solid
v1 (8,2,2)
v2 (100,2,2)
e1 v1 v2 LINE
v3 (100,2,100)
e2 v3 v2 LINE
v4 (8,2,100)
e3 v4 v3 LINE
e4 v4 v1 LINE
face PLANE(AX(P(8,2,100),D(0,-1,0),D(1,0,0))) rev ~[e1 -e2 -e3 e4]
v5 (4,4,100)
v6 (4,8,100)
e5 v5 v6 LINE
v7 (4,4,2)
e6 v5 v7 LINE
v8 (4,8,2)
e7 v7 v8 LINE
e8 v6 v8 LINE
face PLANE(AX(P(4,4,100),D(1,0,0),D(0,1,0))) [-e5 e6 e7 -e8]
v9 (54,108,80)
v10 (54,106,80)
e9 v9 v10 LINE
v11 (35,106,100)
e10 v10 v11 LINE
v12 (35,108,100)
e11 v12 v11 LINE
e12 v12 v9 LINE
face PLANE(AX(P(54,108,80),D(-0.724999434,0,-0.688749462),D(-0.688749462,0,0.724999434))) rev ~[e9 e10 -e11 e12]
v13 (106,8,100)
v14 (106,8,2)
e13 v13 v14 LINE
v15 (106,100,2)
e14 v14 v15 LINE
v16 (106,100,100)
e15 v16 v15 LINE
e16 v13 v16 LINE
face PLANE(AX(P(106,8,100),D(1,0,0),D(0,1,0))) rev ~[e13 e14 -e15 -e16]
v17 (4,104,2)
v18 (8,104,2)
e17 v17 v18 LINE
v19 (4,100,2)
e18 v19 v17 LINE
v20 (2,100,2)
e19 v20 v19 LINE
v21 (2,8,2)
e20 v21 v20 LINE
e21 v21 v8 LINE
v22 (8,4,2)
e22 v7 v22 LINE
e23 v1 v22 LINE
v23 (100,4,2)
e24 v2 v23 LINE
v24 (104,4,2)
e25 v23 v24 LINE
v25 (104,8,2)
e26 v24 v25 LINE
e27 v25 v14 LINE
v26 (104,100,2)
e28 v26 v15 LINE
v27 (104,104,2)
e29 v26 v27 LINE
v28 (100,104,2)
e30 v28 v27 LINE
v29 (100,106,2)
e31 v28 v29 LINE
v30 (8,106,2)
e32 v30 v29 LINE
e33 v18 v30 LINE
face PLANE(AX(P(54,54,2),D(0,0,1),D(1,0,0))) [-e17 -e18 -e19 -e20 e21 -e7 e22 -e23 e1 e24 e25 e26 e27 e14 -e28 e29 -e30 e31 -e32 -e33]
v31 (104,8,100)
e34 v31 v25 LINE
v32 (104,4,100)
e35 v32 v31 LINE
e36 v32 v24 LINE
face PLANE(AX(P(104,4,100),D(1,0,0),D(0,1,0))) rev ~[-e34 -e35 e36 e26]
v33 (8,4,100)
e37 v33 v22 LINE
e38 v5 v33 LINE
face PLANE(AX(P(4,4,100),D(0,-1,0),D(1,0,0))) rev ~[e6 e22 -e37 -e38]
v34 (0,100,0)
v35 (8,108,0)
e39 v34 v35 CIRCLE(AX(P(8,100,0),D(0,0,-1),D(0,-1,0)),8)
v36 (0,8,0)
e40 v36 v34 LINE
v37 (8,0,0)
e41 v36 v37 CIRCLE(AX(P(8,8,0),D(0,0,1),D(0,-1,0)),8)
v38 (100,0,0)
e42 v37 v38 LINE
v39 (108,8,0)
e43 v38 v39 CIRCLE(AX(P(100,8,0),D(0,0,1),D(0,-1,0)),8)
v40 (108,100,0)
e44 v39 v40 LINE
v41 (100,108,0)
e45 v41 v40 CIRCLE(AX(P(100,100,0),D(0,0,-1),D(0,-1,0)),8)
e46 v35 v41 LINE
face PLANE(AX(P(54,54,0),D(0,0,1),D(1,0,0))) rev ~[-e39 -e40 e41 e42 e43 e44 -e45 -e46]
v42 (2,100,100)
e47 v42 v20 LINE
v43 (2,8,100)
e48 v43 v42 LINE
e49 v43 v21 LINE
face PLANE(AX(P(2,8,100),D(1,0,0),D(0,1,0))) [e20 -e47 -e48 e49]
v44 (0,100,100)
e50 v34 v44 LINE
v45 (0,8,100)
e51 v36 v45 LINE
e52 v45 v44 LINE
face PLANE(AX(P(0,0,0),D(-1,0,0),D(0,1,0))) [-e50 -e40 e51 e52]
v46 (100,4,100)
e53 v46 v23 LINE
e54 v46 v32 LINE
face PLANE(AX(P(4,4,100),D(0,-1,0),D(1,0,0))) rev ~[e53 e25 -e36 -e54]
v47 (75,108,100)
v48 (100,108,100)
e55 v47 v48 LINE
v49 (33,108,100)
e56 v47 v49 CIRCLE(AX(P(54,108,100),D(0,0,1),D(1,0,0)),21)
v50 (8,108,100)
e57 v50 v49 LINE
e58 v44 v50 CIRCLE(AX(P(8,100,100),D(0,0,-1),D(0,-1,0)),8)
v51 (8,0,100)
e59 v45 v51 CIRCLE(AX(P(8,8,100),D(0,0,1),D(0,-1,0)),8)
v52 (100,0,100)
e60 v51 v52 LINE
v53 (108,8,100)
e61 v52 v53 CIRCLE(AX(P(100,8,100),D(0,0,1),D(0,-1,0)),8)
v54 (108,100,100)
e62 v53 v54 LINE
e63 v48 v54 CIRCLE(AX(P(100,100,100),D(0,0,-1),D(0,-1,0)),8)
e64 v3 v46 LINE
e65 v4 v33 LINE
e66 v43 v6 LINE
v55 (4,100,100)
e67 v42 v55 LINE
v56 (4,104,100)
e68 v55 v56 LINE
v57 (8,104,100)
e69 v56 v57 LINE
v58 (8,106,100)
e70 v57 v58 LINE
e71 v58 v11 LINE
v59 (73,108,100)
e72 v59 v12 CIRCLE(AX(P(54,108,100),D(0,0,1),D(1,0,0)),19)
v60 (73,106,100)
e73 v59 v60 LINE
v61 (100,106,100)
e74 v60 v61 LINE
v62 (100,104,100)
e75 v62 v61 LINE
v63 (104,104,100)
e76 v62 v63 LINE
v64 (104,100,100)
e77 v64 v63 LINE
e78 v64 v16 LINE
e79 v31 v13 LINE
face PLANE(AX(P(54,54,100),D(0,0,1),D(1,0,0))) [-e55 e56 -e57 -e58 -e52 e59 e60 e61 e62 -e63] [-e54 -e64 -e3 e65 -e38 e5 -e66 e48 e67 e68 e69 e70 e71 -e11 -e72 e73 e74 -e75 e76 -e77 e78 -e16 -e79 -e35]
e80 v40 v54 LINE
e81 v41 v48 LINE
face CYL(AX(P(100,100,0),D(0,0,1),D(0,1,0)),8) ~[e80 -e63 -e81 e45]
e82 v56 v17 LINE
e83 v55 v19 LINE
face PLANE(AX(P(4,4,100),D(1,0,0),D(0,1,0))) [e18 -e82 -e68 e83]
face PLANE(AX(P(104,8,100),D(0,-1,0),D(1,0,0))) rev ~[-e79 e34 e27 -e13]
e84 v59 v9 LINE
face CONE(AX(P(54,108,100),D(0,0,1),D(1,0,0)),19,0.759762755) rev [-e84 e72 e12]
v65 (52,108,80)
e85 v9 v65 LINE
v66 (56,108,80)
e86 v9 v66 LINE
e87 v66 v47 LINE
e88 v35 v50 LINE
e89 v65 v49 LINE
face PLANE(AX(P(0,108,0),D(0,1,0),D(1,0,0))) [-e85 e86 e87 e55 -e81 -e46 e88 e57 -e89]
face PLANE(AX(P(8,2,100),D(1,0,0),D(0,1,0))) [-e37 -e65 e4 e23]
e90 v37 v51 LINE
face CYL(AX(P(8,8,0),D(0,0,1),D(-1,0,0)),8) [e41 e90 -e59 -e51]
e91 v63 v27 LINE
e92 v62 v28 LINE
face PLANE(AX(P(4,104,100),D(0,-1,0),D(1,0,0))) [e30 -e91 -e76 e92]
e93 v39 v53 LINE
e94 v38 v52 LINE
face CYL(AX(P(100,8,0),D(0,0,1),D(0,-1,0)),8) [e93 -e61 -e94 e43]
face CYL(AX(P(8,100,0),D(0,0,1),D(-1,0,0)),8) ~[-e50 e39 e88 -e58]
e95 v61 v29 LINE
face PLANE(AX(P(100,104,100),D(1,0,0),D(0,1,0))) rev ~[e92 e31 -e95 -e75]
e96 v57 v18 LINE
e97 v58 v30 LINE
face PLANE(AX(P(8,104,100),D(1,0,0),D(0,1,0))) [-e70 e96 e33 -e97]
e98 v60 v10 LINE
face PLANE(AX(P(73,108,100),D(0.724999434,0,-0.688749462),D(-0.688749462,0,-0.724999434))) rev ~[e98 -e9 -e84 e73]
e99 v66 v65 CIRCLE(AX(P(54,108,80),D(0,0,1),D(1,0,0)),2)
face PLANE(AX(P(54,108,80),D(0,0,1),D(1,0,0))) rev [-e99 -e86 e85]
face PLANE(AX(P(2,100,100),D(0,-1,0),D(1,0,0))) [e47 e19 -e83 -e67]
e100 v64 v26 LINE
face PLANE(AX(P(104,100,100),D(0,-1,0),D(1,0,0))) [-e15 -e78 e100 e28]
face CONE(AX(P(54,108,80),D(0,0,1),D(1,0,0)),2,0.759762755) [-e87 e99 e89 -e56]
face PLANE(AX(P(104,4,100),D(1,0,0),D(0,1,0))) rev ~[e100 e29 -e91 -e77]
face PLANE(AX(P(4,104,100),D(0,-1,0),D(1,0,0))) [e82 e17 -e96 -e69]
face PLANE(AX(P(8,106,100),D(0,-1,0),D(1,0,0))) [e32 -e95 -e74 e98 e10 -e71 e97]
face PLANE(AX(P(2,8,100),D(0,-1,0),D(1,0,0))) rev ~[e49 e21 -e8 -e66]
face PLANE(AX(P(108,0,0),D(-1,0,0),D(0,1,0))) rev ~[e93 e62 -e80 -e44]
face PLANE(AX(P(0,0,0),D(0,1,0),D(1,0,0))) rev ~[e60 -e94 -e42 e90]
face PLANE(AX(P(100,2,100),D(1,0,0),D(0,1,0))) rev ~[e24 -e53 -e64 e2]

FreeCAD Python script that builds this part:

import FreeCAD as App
import Part
import Sketcher
from FreeCAD import Vector
Q = App.Units.Quantity


def edges_at(feature, points):
    """Names of the edges that pass closest to the given points."""
    edges = feature.Shape.Edges
    near = lambda p: min(range(len(edges)), key=lambda i: edges[i].distToShape(Part.Vertex(*p))[0])
    return sorted({f"Edge{near(p) + 1}" for p in points})

doc = App.newDocument("Part")
body = doc.addObject("PartDesign::Body", "Body")

sketch1 = body.newObject("Sketcher::SketchObject", "Sketch")
sketch1.AttachmentSupport = (doc.getObject("XY_Plane"), [""])
sketch1.MapMode = "FlatFace"
sketch1.addGeometry([
    Part.LineSegment(Vector(0, 108, 0), Vector(0, 0, 0)),
    Part.LineSegment(Vector(0, 0, 0), Vector(108, 0, 0)),
    Part.LineSegment(Vector(108, 0, 0), Vector(108, 108, 0)),
    Part.LineSegment(Vector(108, 108, 0), Vector(0, 108, 0)),
], False)
sketch1.addConstraint([
    Sketcher.Constraint("Coincident", 0, 2, 1, 1),
    Sketcher.Constraint("Coincident", 1, 2, 2, 1),
    Sketcher.Constraint("Coincident", 2, 2, 3, 1),
    Sketcher.Constraint("Coincident", 3, 2, 0, 1),
    Sketcher.Constraint("Vertical", 0),
    Sketcher.Constraint("Horizontal", 1),
    Sketcher.Constraint("Vertical", 2),
    Sketcher.Constraint("Horizontal", 3),
    Sketcher.Constraint("Coincident", 0, 2, -1, 1),
    Sketcher.Constraint("Equal", 3, 0),
    Sketcher.Constraint("DistanceX", 1, 1, 1, 2, Q("108 mm")),
])
pad1 = body.newObject("PartDesign::Pad", "Pad")
pad1.Profile = sketch1
pad1.Length = 100

sketch2 = body.newObject("Sketcher::SketchObject", "Sketch001")
sketch2.AttachmentSupport = (doc.getObject("XY_Plane"), [""])
sketch2.MapMode = "FlatFace"
sketch2.AttachmentOffset = App.Placement(Vector(0, 0, 100), App.Rotation())
sketch2.addGeometry([
    Part.LineSegment(Vector(4, 104, 0), Vector(4, 4, 0)),
    Part.LineSegment(Vector(4, 4, 0), Vector(104, 4, 0)),
    Part.LineSegment(Vector(104, 4, 0), Vector(104, 104, 0)),
    Part.LineSegment(Vector(104, 104, 0), Vector(4, 104, 0)),
], False)
sketch2.addConstraint([
    Sketcher.Constraint("Coincident", 0, 2, 1, 1),
    Sketcher.Constraint("Coincident", 1, 2, 2, 1),
    Sketcher.Constraint("Coincident", 2, 2, 3, 1),
    Sketcher.Constraint("Coincident", 3, 2, 0, 1),
    Sketcher.Constraint("Vertical", 0),
    Sketcher.Constraint("Horizontal", 1),
    Sketcher.Constraint("Vertical", 2),
    Sketcher.Constraint("Horizontal", 3),
    Sketcher.Constraint("Equal", 3, 0),
    Sketcher.Constraint("DistanceX", 1, 1, 1, 2, Q("100 mm")),
    Sketcher.Constraint("DistanceX", -1, 1, 0, 2, Q("4 mm")),
    Sketcher.Constraint("DistanceY", -1, 1, 0, 2, Q("4 mm")),
])
pocket1 = body.newObject("PartDesign::Pocket", "Pocket")
pocket1.Profile = sketch2
pocket1.Length = 98
doc.recompute()

fillet = body.newObject("PartDesign::Fillet", "Fillet")
fillet.Base = (pocket1, edges_at(pocket1, [
    (108, 0, 50),
    (0, 0, 50),
    (0, 108, 50),
    (108, 108, 50),
]))
fillet.Radius = 8

sketch3 = body.newObject("Sketcher::SketchObject", "Sketch002")
sketch3.AttachmentSupport = (doc.getObject("XY_Plane"), [""])
sketch3.MapMode = "FlatFace"
sketch3.AttachmentOffset = App.Placement(Vector(0, 0, 100), App.Rotation())
sketch3.addGeometry([
    Part.LineSegment(Vector(2, 100, 0), Vector(2, 8, 0)),
    Part.LineSegment(Vector(2, 8, 0), Vector(4, 8, 0)),
    Part.LineSegment(Vector(4, 8, 0), Vector(4, 100, 0)),
    Part.LineSegment(Vector(4, 100, 0), Vector(2, 100, 0)),
    Part.LineSegment(Vector(8, 4, 0), Vector(8, 2, 0)),
    Part.LineSegment(Vector(8, 2, 0), Vector(100, 2, 0)),
    Part.LineSegment(Vector(100, 2, 0), Vector(100, 4, 0)),
    Part.LineSegment(Vector(100, 4, 0), Vector(8, 4, 0)),
    Part.LineSegment(Vector(104, 100, 0), Vector(104, 8, 0)),
    Part.LineSegment(Vector(104, 8, 0), Vector(106, 8, 0)),
    Part.LineSegment(Vector(106, 8, 0), Vector(106, 100, 0)),
    Part.LineSegment(Vector(106, 100, 0), Vector(104, 100, 0)),
    Part.LineSegment(Vector(8, 106, 0), Vector(8, 104, 0)),
    Part.LineSegment(Vector(8, 104, 0), Vector(100, 104, 0)),
    Part.LineSegment(Vector(100, 104, 0), Vector(100, 106, 0)),
    Part.LineSegment(Vector(100, 106, 0), Vector(8, 106, 0)),
], False)
sketch3.addConstraint([
    Sketcher.Constraint("Coincident", 0, 2, 1, 1),
    Sketcher.Constraint("Coincident", 1, 2, 2, 1),
    Sketcher.Constraint("Coincident", 2, 2, 3, 1),
    Sketcher.Constraint("Coincident", 3, 2, 0, 1),
    Sketcher.Constraint("Coincident", 4, 2, 5, 1),
    Sketcher.Constraint("Coincident", 5, 2, 6, 1),
    Sketcher.Constraint("Coincident", 6, 2, 7, 1),
    Sketcher.Constraint("Coincident", 7, 2, 4, 1),
    Sketcher.Constraint("Coincident", 8, 2, 9, 1),
    Sketcher.Constraint("Coincident", 9, 2, 10, 1),
    Sketcher.Constraint("Coincident", 10, 2, 11, 1),
    Sketcher.Constraint("Coincident", 11, 2, 8, 1),
    Sketcher.Constraint("Coincident", 12, 2, 13, 1),
    Sketcher.Constraint("Coincident", 13, 2, 14, 1),
    Sketcher.Constraint("Coincident", 14, 2, 15, 1),
    Sketcher.Constraint("Coincident", 15, 2, 12, 1),
    Sketcher.Constraint("Vertical", 0),
    Sketcher.Constraint("Horizontal", 1),
    Sketcher.Constraint("Vertical", 2),
    Sketcher.Constraint("Horizontal", 3),
    Sketcher.Constraint("Vertical", 4),
    Sketcher.Constraint("Horizontal", 5),
    Sketcher.Constraint("Vertical", 6),
    Sketcher.Constraint("Horizontal", 7),
    Sketcher.Constraint("Vertical", 8),
    Sketcher.Constraint("Horizontal", 9),
    Sketcher.Constraint("Vertical", 10),
    Sketcher.Constraint("Horizontal", 11),
    Sketcher.Constraint("Vertical", 12),
    Sketcher.Constraint("Horizontal", 13),
    Sketcher.Constraint("Vertical", 14),
    Sketcher.Constraint("Horizontal", 15),
    Sketcher.Constraint("Horizontal", 1, 2, 8, 2),
    Sketcher.Constraint("Horizontal", 3, 2, 10, 2),
    Sketcher.Constraint("Vertical", 7, 2, 12, 2),
    Sketcher.Constraint("Vertical", 6, 2, 13, 2),
    Sketcher.Constraint("Equal", 3, 9),
    Sketcher.Constraint("Equal", 15, 0),
    Sketcher.Constraint("Equal", 11, 4),
    Sketcher.Constraint("Equal", 6, 12),
    Sketcher.Constraint("DistanceX", 1, 1, 1, 2, Q("2 mm")),
    Sketcher.Constraint("DistanceX", 5, 1, 5, 2, Q("92 mm")),
    Sketcher.Constraint("DistanceX", -1, 1, 0, 2, Q("2 mm")),
    Sketcher.Constraint("DistanceY", -1, 1, 0, 2, Q("8 mm")),
    Sketcher.Constraint("DistanceX", -1, 1, 4, 2, Q("8 mm")),
    Sketcher.Constraint("DistanceY", -1, 1, 4, 2, Q("2 mm")),
    Sketcher.Constraint("DistanceX", -1, 1, 8, 2, Q("104 mm")),
    Sketcher.Constraint("DistanceY", -1, 1, 12, 2, Q("104 mm")),
])
pocket2 = body.newObject("PartDesign::Pocket", "Pocket001")
pocket2.Profile = sketch3
pocket2.Length = 98

sketch4 = body.newObject("Sketcher::SketchObject", "Sketch003")
sketch4.AttachmentSupport = (doc.getObject("XZ_Plane"), [""])
sketch4.MapMode = "FlatFace"
sketch4.AttachmentOffset = App.Placement(Vector(0, 0, -108), App.Rotation())
sketch4.addGeometry([
    Part.LineSegment(Vector(73, 100, 0), Vector(75, 100, 0)),
    Part.LineSegment(Vector(75, 100, 0), Vector(56, 80, 0)),
    Part.LineSegment(Vector(56, 80, 0), Vector(54, 80, 0)),
    Part.LineSegment(Vector(54, 80, 0), Vector(73, 100, 0)),
], False)
sketch4.addGeometry(Part.LineSegment(Vector(54, 80, 0), Vector(54, 100, 0)), True)
sketch4.addConstraint([
    Sketcher.Constraint("Coincident", 0, 2, 1, 1),
    Sketcher.Constraint("Coincident", 1, 2, 2, 1),
    Sketcher.Constraint("Coincident", 2, 2, 3, 1),
    Sketcher.Constraint("Coincident", 3, 2, 0, 1),
    Sketcher.Constraint("Horizontal", 0),
    Sketcher.Constraint("Horizontal", 2),
    Sketcher.Constraint("Vertical", 4),
    Sketcher.Constraint("Coincident", 4, 1, 2, 2),
    Sketcher.Constraint("Parallel", 1, 3),
    Sketcher.Constraint("Horizontal", 3, 2, 4, 2),
    Sketcher.Constraint("DistanceX", 0, 1, 0, 2, Q("2 mm")),
    Sketcher.Constraint("DistanceY", 4, 1, 4, 2, Q("20 mm")),
    Sketcher.Constraint("DistanceX", -1, 1, 0, 2, Q("75 mm")),
    Sketcher.Constraint("DistanceY", -1, 1, 0, 2, Q("100 mm")),
    Sketcher.Constraint("DistanceX", -1, 1, 1, 2, Q("56 mm")),
])
revolution = body.newObject("PartDesign::Revolution", "Revolution")
revolution.Profile = sketch4
revolution.ReferenceAxis = (sketch4, ["Axis0"])
revolution.Angle = 180

sketch5 = body.newObject("Sketcher::SketchObject", "Sketch004")
sketch5.AttachmentSupport = (doc.getObject("XZ_Plane"), [""])
sketch5.MapMode = "FlatFace"
sketch5.AttachmentOffset = App.Placement(Vector(0, 0, -108), App.Rotation())
sketch5.addGeometry([
    Part.LineSegment(Vector(73, 100, 0), Vector(54, 80, 0)),
    Part.LineSegment(Vector(54, 80, 0), Vector(35, 100, 0)),
    Part.LineSegment(Vector(35, 100, 0), Vector(73, 100, 0)),
], False)
sketch5.addConstraint([
    Sketcher.Constraint("Coincident", 0, 2, 1, 1),
    Sketcher.Constraint("Coincident", 1, 2, 2, 1),
    Sketcher.Constraint("Coincident", 2, 2, 0, 1),
    Sketcher.Constraint("Horizontal", 2),
    Sketcher.Constraint("Equal", 0, 1),
    Sketcher.Constraint("DistanceX", 2, 1, 2, 2, Q("38 mm")),
    Sketcher.Constraint("DistanceX", -1, 1, 0, 2, Q("54 mm")),
    Sketcher.Constraint("DistanceY", -1, 1, 0, 2, Q("80 mm")),
    Sketcher.Constraint("DistanceY", -1, 1, 1, 2, Q("100 mm")),
])
pocket3 = body.newObject("PartDesign::Pocket", "Pocket002")
pocket3.Profile = sketch5
pocket3.Length = 2
pocket3.Reversed = True

doc.recompute()
